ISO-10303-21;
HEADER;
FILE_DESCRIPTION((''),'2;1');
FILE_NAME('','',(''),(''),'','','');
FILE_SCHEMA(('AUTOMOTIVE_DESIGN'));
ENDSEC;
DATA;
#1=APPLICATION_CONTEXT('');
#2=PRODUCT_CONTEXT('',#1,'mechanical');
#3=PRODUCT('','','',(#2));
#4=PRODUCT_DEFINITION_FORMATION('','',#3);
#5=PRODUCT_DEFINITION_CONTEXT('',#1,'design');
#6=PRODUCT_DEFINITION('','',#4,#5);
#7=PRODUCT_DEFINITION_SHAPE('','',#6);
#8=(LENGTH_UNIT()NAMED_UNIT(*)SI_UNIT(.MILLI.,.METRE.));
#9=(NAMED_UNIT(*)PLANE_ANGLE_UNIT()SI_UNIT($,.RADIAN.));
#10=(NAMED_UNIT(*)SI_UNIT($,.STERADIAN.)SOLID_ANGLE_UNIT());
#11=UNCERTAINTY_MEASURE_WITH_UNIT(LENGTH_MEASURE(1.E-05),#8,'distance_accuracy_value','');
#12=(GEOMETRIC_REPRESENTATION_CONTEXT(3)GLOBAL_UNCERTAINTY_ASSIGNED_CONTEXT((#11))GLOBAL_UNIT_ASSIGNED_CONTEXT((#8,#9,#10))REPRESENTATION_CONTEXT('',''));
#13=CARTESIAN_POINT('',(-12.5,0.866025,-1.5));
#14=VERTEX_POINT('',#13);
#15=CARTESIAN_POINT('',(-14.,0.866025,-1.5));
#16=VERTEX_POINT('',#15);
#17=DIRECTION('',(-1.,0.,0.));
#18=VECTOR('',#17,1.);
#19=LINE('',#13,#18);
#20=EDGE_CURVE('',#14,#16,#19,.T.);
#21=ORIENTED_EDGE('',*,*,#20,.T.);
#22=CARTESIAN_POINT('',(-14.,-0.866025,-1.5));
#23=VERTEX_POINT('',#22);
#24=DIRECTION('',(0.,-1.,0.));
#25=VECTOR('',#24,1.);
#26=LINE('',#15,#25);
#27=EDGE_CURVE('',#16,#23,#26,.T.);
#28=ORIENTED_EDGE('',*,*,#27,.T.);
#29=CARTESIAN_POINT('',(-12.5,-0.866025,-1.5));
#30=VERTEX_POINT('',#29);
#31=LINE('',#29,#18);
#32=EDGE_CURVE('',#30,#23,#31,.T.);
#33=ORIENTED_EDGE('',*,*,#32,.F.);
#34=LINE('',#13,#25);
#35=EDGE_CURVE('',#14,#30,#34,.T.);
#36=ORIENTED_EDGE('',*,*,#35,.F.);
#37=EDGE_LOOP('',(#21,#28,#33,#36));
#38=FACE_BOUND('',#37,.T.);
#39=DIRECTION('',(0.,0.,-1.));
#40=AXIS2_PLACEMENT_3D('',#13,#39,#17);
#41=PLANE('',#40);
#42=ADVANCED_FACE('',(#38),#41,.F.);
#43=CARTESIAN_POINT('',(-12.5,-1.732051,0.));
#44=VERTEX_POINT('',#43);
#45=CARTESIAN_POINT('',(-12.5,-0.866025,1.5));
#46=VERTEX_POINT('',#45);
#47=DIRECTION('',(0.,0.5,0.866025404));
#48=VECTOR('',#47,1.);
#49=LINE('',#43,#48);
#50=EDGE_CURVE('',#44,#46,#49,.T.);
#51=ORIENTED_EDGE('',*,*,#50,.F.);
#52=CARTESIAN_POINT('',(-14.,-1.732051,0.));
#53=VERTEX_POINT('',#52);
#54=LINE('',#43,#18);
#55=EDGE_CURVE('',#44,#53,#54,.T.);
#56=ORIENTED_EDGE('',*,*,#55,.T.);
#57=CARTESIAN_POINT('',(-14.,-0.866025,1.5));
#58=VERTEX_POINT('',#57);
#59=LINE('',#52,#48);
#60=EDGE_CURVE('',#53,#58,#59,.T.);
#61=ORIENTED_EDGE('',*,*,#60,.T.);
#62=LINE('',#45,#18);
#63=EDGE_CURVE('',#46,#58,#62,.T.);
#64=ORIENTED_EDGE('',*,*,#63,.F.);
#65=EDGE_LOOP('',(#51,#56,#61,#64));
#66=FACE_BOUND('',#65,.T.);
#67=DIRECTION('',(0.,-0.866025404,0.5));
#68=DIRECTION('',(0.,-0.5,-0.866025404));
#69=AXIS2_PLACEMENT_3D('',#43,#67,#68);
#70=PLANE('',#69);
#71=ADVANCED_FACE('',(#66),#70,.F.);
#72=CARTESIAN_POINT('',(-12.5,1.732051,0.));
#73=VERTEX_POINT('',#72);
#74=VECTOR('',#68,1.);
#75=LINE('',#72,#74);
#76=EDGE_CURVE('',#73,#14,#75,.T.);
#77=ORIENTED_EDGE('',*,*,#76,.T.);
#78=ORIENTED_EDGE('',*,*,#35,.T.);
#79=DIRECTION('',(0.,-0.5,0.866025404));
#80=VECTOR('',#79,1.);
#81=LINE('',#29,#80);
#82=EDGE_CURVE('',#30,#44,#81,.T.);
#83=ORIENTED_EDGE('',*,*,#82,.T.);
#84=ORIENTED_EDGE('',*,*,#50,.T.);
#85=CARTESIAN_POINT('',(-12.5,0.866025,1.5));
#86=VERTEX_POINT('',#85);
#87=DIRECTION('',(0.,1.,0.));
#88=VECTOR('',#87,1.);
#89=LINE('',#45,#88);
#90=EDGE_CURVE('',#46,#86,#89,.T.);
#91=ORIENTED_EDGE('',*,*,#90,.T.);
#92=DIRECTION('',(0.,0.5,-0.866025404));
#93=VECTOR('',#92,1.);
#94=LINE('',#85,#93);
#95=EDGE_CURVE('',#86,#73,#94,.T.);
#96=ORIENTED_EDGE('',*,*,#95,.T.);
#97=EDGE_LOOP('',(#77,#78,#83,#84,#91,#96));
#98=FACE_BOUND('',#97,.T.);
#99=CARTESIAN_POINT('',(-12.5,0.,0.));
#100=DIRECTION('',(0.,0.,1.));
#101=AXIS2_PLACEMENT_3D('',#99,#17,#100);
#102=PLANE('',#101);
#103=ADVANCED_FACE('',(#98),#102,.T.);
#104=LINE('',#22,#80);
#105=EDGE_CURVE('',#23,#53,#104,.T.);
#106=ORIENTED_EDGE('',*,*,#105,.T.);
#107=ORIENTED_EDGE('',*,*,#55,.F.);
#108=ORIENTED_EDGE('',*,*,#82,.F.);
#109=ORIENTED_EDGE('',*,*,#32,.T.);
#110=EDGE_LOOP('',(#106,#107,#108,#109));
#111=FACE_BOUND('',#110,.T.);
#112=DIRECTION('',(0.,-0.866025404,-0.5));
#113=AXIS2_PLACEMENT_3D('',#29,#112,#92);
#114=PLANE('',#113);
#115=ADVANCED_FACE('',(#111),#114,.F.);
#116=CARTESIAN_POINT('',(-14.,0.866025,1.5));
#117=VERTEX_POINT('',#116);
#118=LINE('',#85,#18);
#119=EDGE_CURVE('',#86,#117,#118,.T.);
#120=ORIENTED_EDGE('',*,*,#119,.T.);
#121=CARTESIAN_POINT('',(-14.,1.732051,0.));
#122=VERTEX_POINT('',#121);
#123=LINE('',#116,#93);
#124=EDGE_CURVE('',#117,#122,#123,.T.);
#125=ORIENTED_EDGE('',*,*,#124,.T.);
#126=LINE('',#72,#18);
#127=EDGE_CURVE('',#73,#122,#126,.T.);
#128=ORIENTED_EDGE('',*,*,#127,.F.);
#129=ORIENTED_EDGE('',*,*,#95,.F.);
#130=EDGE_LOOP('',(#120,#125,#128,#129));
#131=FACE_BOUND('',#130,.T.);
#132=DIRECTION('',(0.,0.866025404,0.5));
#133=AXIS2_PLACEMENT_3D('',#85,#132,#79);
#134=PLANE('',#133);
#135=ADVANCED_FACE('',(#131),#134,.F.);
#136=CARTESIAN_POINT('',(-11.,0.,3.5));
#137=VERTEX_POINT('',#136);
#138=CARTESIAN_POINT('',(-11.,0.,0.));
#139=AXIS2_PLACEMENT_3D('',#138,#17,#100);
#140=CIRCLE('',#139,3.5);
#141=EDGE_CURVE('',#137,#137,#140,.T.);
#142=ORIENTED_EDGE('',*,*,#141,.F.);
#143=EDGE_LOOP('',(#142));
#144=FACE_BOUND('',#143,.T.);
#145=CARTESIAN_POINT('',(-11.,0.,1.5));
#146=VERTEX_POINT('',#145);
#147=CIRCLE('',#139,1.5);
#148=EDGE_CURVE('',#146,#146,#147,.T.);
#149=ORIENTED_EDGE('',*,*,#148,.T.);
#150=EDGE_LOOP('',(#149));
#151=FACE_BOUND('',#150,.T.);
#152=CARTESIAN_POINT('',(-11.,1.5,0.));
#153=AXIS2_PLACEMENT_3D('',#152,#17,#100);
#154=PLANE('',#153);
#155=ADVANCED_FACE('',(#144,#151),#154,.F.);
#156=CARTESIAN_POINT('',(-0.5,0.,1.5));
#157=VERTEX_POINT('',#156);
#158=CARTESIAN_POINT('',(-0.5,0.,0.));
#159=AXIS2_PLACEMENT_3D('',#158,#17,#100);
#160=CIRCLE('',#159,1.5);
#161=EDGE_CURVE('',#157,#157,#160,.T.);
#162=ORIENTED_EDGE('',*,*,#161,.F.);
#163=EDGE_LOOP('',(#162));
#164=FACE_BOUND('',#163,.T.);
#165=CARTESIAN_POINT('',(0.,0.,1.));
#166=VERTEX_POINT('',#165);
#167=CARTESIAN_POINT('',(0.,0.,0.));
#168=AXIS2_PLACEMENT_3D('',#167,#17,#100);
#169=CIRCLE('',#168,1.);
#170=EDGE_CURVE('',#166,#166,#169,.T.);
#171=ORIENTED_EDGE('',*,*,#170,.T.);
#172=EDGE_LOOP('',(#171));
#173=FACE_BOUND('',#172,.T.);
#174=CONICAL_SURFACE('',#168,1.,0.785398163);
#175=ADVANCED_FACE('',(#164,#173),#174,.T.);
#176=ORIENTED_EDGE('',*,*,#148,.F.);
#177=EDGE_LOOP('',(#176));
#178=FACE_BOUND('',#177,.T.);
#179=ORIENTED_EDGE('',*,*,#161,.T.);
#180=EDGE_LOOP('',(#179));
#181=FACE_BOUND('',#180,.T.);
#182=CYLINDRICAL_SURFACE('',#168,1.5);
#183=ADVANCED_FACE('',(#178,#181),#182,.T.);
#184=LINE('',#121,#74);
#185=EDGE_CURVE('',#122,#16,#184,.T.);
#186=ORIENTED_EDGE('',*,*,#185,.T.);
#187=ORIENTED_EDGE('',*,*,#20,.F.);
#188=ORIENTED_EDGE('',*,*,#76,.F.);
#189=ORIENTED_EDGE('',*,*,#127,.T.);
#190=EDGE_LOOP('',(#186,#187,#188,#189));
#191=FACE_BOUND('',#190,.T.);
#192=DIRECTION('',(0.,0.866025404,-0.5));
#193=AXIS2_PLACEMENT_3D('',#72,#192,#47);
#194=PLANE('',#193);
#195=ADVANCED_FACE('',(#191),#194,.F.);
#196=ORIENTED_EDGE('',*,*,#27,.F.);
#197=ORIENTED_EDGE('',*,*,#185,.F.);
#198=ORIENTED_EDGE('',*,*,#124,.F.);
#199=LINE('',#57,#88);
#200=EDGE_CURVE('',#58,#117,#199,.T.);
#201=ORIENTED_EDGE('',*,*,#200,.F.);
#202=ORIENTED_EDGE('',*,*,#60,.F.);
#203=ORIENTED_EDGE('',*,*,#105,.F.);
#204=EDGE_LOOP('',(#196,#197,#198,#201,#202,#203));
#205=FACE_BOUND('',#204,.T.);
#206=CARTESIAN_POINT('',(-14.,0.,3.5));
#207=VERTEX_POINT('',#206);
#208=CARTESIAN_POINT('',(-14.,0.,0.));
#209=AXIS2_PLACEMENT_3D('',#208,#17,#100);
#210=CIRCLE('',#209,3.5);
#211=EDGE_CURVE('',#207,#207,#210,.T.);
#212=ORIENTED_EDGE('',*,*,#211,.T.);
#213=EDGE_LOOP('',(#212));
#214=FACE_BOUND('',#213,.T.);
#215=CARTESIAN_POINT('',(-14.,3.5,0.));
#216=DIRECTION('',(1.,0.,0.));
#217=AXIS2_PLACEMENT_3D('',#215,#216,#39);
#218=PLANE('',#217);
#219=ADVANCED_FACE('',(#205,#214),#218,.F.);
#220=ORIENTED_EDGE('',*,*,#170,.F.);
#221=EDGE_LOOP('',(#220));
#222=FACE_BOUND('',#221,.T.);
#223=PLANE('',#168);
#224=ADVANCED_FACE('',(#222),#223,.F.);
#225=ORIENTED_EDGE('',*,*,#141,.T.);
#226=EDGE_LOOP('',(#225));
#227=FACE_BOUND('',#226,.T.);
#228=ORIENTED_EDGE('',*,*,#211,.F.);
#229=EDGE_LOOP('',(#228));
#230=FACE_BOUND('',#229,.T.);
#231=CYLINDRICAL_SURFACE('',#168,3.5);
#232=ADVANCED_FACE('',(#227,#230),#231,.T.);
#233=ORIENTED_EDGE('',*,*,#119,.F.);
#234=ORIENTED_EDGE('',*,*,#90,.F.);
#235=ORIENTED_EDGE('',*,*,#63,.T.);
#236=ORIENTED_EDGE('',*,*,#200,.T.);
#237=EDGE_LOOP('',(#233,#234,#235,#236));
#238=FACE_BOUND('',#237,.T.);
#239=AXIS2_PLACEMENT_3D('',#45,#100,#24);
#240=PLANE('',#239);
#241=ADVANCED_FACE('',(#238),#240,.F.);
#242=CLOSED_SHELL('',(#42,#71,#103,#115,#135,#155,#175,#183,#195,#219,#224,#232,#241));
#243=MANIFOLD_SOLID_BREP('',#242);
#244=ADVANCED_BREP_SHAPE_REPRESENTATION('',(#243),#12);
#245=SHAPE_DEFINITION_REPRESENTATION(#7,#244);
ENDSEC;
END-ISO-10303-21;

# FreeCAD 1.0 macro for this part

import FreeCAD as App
import Part
import Sketcher
Q = App.Units.Quantity


def add_polygon(sketch, points):
    """Adds a closed chain of lines whose ends are joined by coincident constraints."""
    first, n = sketch.GeometryCount, len(points)
    for a, b in zip(points, points[1:] + points[:1]):
        sketch.addGeometry(Part.LineSegment(App.Vector(*a, 0), App.Vector(*b, 0)), False)
    for i in range(n):
        sketch.addConstraint(Sketcher.Constraint("Coincident", first + i, 2, first + (i + 1) % n, 1))

doc = App.newDocument("Part")
body = doc.addObject("PartDesign::Body", "Body")

# Sketch on XY plane
sketch1 = doc.addObject("Sketcher::SketchObject", "Sketch")
body.addObject(sketch1)
sketch1.AttachmentSupport = (doc.XY_Plane, [""])
sketch1.MapMode = "FlatFace"
add_polygon(sketch1, [(0, 0), (0, 1), (-0.5, 1.5), (-11, 1.5), (-11, 3.5), (-14, 3.5), (-14, 0)])  # lines 0-6
sketch1.addConstraint([
    Sketcher.Constraint("Vertical", 0),
    Sketcher.Constraint("Horizontal", 2),
    Sketcher.Constraint("Vertical", 3),
    Sketcher.Constraint("Horizontal", 4),
    Sketcher.Constraint("Vertical", 5),
    Sketcher.Constraint("Horizontal", 6),
    Sketcher.Constraint("Coincident", 6, 2, -1, 1),
    Sketcher.Constraint("DistanceX", 4, 2, 4, 1, Q("3 mm")),
    Sketcher.Constraint("DistanceX", 6, 1, 6, 2, Q("14 mm")),
    Sketcher.Constraint("DistanceY", 0, 1, 0, 2, Q("1 mm")),
    Sketcher.Constraint("DistanceY", 3, 1, 3, 2, Q("2 mm")),
    Sketcher.Constraint("Angle", 1, Q("135 deg")),
    Sketcher.Constraint("DistanceX", 2, 2, 2, 1, Q("10.5 mm")),
])
revolution = doc.addObject("PartDesign::Revolution", "Revolution")
body.addObject(revolution)
revolution.Profile = sketch1
revolution.ReferenceAxis = (sketch1, ["H_Axis"])
revolution.Angle = 360

# Sketch on YZ plane
sketch2 = doc.addObject("Sketcher::SketchObject", "Sketch001")
body.addObject(sketch2)
sketch2.AttachmentSupport = (doc.YZ_Plane, [""])
sketch2.MapMode = "FlatFace"
sketch2.AttachmentOffset = App.Placement(App.Vector(0, 0, -14), App.Rotation())
add_polygon(sketch2, [(1.7, 0), (0.9, -1.5), (-0.9, -1.5), (-1.7, 0), (-0.9, 1.5), (0.9, 1.5)])  # lines 0-5
sketch2.addConstraint([
    Sketcher.Constraint("Horizontal", 1),
    Sketcher.Constraint("Horizontal", 4),
    Sketcher.Constraint("Symmetric", 0, 2, 3, 2, -1, 1),
    Sketcher.Constraint("Symmetric", 2, 2, 5, 2, -1, 1),
    Sketcher.Constraint("PointOnObject", 2, 2, -1),
    Sketcher.Constraint("Parallel", 2, 5),
    Sketcher.Constraint("Vertical", 1, 2, 3, 2),
    Sketcher.Constraint("Angle", 0, Q("-120 deg")),
    Sketcher.Constraint("DistanceY", 1, 2, 3, 2, Q("3 mm")),
    Sketcher.Constraint("DistanceX", 1, 2, 1, 1, Q("1.732051 mm")),
])
pocket1 = doc.addObject("PartDesign::Pocket", "Pocket")
body.addObject(pocket1)
pocket1.Profile = sketch2
pocket1.Length = 1.5
pocket1.Reversed = True

doc.recompute()
